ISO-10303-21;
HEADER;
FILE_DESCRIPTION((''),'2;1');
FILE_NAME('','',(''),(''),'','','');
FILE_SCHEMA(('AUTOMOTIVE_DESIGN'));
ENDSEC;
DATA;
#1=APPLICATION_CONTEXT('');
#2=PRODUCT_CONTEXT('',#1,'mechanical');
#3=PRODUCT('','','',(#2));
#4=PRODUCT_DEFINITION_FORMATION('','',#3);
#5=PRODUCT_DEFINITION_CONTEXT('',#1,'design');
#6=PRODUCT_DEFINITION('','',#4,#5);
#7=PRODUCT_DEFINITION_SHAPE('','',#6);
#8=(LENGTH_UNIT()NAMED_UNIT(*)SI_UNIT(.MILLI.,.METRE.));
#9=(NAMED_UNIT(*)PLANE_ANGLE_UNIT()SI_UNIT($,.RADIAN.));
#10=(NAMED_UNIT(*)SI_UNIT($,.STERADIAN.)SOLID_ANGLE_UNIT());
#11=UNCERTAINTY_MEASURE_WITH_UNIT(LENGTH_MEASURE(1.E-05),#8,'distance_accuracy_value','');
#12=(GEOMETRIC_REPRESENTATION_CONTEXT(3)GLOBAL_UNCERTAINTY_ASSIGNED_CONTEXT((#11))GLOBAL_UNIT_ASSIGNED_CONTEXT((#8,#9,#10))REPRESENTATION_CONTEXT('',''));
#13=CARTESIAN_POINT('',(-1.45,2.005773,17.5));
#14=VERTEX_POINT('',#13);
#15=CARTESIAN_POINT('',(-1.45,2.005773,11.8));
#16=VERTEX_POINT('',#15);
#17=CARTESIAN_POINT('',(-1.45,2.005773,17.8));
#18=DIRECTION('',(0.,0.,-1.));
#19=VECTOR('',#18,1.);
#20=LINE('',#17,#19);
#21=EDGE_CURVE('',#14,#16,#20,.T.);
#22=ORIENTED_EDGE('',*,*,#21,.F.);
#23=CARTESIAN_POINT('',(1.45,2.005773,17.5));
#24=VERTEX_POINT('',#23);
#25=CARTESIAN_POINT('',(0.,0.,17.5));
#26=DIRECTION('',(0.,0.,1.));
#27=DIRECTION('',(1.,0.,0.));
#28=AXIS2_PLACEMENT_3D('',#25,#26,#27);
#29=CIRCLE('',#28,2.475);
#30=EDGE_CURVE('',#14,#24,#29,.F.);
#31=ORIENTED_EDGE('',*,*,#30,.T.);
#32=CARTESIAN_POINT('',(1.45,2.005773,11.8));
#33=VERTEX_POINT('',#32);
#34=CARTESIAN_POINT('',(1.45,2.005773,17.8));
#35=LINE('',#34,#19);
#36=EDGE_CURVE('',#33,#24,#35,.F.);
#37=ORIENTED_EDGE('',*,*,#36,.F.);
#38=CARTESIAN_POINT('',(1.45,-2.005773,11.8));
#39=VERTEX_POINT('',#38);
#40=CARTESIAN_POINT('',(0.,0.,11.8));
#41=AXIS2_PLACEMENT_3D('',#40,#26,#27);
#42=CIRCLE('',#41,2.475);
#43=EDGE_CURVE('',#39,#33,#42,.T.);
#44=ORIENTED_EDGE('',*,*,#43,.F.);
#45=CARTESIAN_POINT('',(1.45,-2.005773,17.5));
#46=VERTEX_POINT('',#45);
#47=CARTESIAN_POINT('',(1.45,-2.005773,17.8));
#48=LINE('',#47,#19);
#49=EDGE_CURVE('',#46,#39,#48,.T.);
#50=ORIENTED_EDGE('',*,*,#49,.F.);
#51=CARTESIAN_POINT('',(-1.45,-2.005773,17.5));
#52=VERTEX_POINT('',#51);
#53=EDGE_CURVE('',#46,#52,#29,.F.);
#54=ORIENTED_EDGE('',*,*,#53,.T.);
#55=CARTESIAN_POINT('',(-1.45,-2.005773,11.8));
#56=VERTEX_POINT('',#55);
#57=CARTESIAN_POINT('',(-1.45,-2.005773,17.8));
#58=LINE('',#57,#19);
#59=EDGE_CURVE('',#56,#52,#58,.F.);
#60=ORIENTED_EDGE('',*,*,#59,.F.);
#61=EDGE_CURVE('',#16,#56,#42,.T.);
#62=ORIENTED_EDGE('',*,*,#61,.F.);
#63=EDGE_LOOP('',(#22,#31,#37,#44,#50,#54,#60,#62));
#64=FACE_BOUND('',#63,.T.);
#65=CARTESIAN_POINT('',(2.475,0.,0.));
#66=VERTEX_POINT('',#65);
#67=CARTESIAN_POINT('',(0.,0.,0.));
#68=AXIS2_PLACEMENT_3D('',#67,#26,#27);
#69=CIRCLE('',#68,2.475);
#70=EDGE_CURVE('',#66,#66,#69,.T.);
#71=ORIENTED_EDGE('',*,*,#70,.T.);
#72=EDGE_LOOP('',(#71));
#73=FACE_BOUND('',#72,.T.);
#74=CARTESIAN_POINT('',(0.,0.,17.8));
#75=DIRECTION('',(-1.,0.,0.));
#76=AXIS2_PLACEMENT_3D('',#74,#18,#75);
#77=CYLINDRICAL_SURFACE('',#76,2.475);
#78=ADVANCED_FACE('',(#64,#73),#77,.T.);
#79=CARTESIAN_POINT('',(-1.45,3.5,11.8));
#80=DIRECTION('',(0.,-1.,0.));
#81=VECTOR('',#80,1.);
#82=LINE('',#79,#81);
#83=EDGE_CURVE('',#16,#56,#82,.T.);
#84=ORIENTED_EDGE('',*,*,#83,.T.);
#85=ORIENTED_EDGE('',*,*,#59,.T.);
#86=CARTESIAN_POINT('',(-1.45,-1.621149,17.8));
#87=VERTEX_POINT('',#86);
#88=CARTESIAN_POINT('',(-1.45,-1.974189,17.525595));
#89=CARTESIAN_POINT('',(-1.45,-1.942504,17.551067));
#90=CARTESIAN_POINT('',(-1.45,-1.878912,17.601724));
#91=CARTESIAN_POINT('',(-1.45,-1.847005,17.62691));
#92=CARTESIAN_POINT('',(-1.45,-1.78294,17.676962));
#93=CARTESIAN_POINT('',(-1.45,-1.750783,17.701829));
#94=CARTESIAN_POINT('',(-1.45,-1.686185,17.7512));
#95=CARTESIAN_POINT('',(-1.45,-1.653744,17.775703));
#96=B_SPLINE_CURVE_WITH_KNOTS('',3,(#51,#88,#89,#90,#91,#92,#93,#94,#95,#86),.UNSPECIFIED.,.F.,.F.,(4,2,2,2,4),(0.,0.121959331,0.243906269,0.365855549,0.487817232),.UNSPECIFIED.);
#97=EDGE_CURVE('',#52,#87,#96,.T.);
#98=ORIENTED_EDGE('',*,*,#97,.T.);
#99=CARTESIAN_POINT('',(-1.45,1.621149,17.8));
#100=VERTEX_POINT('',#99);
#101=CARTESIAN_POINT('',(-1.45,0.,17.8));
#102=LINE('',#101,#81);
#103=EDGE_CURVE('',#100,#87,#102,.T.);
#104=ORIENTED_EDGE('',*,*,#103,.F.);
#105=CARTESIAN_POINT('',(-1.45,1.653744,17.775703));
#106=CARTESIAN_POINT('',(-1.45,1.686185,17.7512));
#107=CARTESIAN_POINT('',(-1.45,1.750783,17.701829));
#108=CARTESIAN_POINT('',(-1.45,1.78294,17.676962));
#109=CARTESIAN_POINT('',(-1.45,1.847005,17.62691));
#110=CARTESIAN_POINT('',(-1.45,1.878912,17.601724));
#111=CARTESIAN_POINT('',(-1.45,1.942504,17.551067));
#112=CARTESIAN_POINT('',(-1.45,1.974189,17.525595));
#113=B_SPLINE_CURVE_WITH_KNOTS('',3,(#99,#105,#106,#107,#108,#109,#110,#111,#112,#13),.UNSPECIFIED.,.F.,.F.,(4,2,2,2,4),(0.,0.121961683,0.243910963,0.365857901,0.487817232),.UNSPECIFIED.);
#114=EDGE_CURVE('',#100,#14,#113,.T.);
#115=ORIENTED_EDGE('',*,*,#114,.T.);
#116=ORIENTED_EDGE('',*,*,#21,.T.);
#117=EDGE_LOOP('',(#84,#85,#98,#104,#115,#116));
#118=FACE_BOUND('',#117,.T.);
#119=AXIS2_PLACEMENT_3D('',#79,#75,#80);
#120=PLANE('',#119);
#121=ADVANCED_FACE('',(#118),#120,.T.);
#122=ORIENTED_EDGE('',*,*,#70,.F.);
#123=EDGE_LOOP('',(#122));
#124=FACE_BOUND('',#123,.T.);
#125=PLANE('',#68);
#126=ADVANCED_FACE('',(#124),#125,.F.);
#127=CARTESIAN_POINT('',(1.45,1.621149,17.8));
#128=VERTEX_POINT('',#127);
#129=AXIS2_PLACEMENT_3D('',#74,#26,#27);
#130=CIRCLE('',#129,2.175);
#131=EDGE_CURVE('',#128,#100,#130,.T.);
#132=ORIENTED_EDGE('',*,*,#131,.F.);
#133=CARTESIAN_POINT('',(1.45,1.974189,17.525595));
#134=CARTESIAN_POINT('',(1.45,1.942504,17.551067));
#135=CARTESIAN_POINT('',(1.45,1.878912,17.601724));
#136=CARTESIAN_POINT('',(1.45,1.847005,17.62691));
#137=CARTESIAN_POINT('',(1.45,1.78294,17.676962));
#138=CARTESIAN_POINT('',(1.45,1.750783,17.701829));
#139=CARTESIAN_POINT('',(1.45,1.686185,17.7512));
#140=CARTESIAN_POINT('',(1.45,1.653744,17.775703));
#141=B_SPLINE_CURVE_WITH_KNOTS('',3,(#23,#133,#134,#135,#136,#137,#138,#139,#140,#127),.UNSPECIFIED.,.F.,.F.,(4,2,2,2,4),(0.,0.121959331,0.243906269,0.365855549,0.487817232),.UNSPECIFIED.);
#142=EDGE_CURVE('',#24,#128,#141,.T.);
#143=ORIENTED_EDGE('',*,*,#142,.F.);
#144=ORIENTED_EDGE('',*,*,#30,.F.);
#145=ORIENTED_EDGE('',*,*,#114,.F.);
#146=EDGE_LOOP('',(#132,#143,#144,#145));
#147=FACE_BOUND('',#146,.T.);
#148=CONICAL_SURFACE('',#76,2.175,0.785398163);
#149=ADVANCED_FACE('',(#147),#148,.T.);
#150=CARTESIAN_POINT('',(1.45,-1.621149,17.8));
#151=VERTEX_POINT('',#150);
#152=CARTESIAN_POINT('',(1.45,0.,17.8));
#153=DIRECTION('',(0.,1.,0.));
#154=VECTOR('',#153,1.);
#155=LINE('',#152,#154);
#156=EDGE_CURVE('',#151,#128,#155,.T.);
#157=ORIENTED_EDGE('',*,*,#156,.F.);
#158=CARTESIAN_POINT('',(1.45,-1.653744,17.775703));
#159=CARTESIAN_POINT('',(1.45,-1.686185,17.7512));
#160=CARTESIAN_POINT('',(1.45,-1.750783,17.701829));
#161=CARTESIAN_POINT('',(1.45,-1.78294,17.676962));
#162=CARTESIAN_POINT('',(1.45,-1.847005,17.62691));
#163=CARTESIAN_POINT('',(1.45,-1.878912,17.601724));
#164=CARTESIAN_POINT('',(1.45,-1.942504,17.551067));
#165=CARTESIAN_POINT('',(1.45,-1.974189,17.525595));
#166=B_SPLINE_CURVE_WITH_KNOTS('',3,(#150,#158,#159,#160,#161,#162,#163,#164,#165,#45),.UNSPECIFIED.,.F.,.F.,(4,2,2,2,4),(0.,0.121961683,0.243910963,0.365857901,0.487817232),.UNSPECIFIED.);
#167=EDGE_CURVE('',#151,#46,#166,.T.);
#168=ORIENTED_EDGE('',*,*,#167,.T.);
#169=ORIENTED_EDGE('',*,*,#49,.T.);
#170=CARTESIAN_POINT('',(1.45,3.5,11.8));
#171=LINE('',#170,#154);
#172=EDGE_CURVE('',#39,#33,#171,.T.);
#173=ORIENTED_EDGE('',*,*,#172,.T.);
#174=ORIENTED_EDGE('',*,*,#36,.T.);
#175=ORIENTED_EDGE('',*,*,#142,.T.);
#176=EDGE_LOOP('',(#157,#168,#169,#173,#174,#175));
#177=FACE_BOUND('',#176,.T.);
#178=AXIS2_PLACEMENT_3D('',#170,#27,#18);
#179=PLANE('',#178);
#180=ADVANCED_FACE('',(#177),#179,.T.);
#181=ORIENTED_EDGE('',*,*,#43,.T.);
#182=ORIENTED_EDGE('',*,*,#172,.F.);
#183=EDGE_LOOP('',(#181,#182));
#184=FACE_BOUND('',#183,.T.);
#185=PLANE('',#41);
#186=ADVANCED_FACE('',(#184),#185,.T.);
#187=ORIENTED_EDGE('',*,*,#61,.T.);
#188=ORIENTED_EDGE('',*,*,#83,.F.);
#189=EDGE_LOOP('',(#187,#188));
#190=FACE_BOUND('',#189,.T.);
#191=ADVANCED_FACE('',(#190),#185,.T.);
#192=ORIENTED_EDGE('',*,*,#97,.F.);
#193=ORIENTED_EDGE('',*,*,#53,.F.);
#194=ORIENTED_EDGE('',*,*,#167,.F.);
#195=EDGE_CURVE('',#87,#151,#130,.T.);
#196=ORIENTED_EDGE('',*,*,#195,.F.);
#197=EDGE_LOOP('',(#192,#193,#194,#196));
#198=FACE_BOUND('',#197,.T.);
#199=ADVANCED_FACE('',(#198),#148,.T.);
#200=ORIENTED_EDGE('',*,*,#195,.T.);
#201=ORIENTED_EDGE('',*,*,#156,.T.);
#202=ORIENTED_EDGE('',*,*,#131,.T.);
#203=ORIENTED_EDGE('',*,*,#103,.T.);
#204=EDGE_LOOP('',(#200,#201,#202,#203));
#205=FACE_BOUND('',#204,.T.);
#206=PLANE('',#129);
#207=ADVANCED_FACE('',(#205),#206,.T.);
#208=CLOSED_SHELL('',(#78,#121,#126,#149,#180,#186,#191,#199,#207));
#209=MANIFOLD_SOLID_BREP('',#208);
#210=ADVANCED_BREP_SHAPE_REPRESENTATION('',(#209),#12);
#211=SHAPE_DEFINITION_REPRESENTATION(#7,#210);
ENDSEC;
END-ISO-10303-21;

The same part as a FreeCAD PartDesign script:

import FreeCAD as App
import Part
import Sketcher
Q = App.Units.Quantity


def edges_at(feature, points):
    """Names of the edges that pass closest to the given points."""
    edges = feature.Shape.Edges
    near = lambda p: min(range(len(edges)), key=lambda i: edges[i].distToShape(Part.Vertex(*p))[0])
    return sorted({f"Edge{near(p) + 1}" for p in points})


def add_polygon(sketch, points):
    """Adds a closed chain of lines whose ends are joined by coincident constraints."""
    first, n = sketch.GeometryCount, len(points)
    for a, b in zip(points, points[1:] + points[:1]):
        sketch.addGeometry(Part.LineSegment(App.Vector(*a, 0), App.Vector(*b, 0)), False)
    for i in range(n):
        sketch.addConstraint(Sketcher.Constraint("Coincident", first + i, 2, first + (i + 1) % n, 1))

doc = App.newDocument("Part")
body = doc.addObject("PartDesign::Body", "Body")

# Sketch on XY plane
sketch1 = body.newObject("Sketcher::SketchObject", "Sketch")
sketch1.AttachmentSupport = (doc.getObject("XY_Plane"), [""])
sketch1.MapMode = "FlatFace"
sketch1.addGeometry(Part.Circle(App.Vector(0, 0, 0), App.Vector(0, 0, 1), 2.475), False)
sketch1.addConstraint([
    Sketcher.Constraint("Coincident", 0, 3, -1, 1),
    Sketcher.Constraint("Diameter", 0, Q("4.95 mm")),
])
pad1 = body.newObject("PartDesign::Pad", "Pad")
pad1.Profile = sketch1
pad1.Length = 17.8

# Sketch on XY plane
sketch2 = body.newObject("Sketcher::SketchObject", "Sketch001")
sketch2.AttachmentSupport = (doc.getObject("XY_Plane"), [""])
sketch2.MapMode = "FlatFace"
sketch2.AttachmentOffset = App.Placement(App.Vector(0, 0, 17.8), App.Rotation())
add_polygon(sketch2, [(-5.388, 5.388), (-5.388, -5.388), (5.388, -5.388), (5.388, 5.388)])  # lines 0-3
add_polygon(sketch2, [(1.45, -3.5), (-1.45, -3.5), (-1.45, 3.5), (1.45, 3.5)])  # lines 4-7
sketch2.addConstraint([
    Sketcher.Constraint("Vertical", 0),
    Sketcher.Constraint("Horizontal", 1),
    Sketcher.Constraint("Vertical", 2),
    Sketcher.Constraint("Horizontal", 3),
    Sketcher.Constraint("Horizontal", 4),
    Sketcher.Constraint("Vertical", 5),
    Sketcher.Constraint("Horizontal", 6),
    Sketcher.Constraint("Vertical", 7),
    Sketcher.Constraint("Symmetric", 0, 2, 2, 2, -1, 1),
    Sketcher.Constraint("Symmetric", 4, 2, 6, 2, -1, 1),
    Sketcher.Constraint("Equal", 3, 0),
    Sketcher.Constraint("DistanceY", 5, 1, 5, 2, Q("7 mm")),
    Sketcher.Constraint("DistanceX", 4, 2, 4, 1, Q("2.9 mm")),
    Sketcher.Constraint("DistanceX", 1, 1, 1, 2, Q("10.776 mm")),
])
pocket1 = body.newObject("PartDesign::Pocket", "Pocket")
pocket1.Profile = sketch2
pocket1.Length = 6
doc.recompute()

chamfer = body.newObject("PartDesign::Chamfer", "Chamfer")
chamfer.Base = (pocket1, edges_at(pocket1, [(0, 2.475, 17.8), (0, -2.475, 17.8)]))
chamfer.Size = 0.3

doc.recompute()
